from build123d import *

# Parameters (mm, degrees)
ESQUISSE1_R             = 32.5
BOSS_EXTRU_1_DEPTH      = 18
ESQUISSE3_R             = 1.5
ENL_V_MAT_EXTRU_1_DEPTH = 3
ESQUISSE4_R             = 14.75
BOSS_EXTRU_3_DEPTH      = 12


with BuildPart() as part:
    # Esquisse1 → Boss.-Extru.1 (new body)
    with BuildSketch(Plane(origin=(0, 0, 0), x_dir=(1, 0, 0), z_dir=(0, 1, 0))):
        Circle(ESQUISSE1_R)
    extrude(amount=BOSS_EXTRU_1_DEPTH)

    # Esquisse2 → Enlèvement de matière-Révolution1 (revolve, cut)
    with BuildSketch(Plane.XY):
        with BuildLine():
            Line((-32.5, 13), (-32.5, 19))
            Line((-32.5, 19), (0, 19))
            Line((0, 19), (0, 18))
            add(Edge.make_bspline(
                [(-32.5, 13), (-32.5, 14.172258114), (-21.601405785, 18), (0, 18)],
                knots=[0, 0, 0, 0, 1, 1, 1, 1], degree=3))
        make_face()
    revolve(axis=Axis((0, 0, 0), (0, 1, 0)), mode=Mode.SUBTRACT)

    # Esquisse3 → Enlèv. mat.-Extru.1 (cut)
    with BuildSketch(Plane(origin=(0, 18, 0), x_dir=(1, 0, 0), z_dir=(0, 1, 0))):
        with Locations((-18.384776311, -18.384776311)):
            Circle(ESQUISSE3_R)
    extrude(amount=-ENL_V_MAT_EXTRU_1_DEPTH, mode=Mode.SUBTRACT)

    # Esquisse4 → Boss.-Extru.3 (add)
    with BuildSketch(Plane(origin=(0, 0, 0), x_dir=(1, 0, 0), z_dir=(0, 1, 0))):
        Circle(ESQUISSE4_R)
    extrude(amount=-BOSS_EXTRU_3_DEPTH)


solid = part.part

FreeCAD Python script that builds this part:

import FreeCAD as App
import Part
import Sketcher
Q = App.Units.Quantity

doc = App.newDocument("Part")
body = doc.addObject("PartDesign::Body", "Body")

sketch1 = body.newObject("Sketcher::SketchObject", "Sketch")
sketch1.AttachmentSupport = (doc.getObject("XZ_Plane"), [""])
sketch1.MapMode = "FlatFace"
sketch1.addGeometry(Part.Circle(App.Vector(0, 0, 0), App.Vector(0, 0, 1), 32), False)
sketch1.addConstraint(Sketcher.Constraint("Coincident", 0, 3, -1, 1))
sketch1.addConstraint(Sketcher.Constraint("Diameter", 0, Q("65 mm")))
pad1 = body.newObject("PartDesign::Pad", "Pad")
pad1.Profile = sketch1
pad1.Length = 18
pad1.Reversed = True

sketch2 = body.newObject("Sketcher::SketchObject", "Sketch001")
sketch2.AttachmentSupport = (doc.getObject("XY_Plane"), [""])
sketch2.MapMode = "FlatFace"
sketch2.addGeometry(Part.LineSegment(App.Vector(-32.5, 19, 0), App.Vector(-32.5, 13, 0)), False)
sketch2.addGeometry(Part.BSplineCurve([App.Vector(-32.5, 13, 0), App.Vector(-32.5, 14.172258, 0), App.Vector(-21.601406, 18, 0), App.Vector(0, 18, 0)], [4, 4], [0, 1], False, 3, [1, 1, 1, 1], False), False)
sketch2.addGeometry(Part.LineSegment(App.Vector(0, 18, 0), App.Vector(0, 19, 0)), False)
sketch2.addGeometry(Part.LineSegment(App.Vector(0, 19, 0), App.Vector(-32.5, 19, 0)), False)
sketch2.addConstraint(Sketcher.Constraint("Block", 1))
sketch2.addConstraint(Sketcher.Constraint("Coincident", 0, 2, 1, 1))
sketch2.addConstraint(Sketcher.Constraint("Coincident", 1, 2, 2, 1))
sketch2.addConstraint(Sketcher.Constraint("Coincident", 2, 2, 3, 1))
sketch2.addConstraint(Sketcher.Constraint("Coincident", 3, 2, 0, 1))
sketch2.addConstraint(Sketcher.Constraint("Vertical", 0))
sketch2.addConstraint(Sketcher.Constraint("Vertical", 2))
sketch2.addConstraint(Sketcher.Constraint("Horizontal", 3))
sketch2.addConstraint(Sketcher.Constraint("DistanceY", 0, 2, 0, 1, Q("6 mm")))
groove = body.newObject("PartDesign::Groove", "Groove")
groove.Profile = sketch2
groove.ReferenceAxis = (sketch2, ["V_Axis"])
groove.Angle = 360

sketch3 = body.newObject("Sketcher::SketchObject", "Sketch002")
sketch3.AttachmentSupport = (doc.getObject("XZ_Plane"), [""])
sketch3.MapMode = "FlatFace"
sketch3.AttachmentOffset = App.Placement(App.Vector(0, 0, -18), App.Rotation())
sketch3.addGeometry(Part.Circle(App.Vector(-18.4, 18.4, 0), App.Vector(0, 0, 1), 1.5), False)
sketch3.addConstraint(Sketcher.Constraint("Diameter", 0, Q("3 mm")))
sketch3.addConstraint(Sketcher.Constraint("DistanceX", 0, 3, -1, 1, Q("18.384776 mm")))
sketch3.addConstraint(Sketcher.Constraint("DistanceY", -1, 1, 0, 3, Q("18.384776 mm")))
pocket1 = body.newObject("PartDesign::Pocket", "Pocket")
pocket1.Profile = sketch3
pocket1.Length = 3
pocket1.Reversed = True

sketch4 = body.newObject("Sketcher::SketchObject", "Sketch003")
sketch4.AttachmentSupport = (doc.getObject("XZ_Plane"), [""])
sketch4.MapMode = "FlatFace"
sketch4.addGeometry(Part.Circle(App.Vector(0, 0, 0), App.Vector(0, 0, 1), 15), False)
sketch4.addConstraint(Sketcher.Constraint("Coincident", 0, 3, -1, 1))
sketch4.addConstraint(Sketcher.Constraint("Diameter", 0, Q("29.5 mm")))
pad2 = body.newObject("PartDesign::Pad", "Pad001")
pad2.Profile = sketch4
pad2.Length = 12

doc.recompute()
